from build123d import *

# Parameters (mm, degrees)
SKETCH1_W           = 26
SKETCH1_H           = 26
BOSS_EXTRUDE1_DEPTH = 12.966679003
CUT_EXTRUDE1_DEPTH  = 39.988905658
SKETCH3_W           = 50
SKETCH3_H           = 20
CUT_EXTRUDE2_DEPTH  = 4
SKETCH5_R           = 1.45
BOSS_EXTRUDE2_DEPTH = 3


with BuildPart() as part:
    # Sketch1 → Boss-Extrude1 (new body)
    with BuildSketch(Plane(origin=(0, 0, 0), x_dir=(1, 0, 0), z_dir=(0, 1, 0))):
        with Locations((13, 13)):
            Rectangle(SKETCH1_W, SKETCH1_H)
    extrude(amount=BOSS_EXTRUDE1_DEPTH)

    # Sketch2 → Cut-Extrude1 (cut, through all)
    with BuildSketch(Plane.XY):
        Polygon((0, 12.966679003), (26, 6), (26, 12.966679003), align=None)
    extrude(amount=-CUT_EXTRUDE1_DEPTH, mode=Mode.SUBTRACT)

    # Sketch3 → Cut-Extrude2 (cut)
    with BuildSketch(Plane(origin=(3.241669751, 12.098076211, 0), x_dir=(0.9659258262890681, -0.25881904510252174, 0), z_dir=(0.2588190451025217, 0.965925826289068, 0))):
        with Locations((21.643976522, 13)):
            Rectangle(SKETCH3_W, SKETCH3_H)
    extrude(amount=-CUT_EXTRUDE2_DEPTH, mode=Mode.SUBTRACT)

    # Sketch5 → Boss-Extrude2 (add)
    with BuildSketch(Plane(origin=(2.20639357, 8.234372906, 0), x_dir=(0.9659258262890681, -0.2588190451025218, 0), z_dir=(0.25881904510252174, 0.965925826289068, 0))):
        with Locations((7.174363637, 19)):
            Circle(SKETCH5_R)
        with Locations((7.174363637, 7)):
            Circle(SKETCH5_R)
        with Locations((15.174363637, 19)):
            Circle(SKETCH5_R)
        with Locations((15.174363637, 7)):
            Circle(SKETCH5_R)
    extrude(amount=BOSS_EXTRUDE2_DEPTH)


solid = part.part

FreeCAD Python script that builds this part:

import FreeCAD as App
import Part
import Sketcher
from FreeCAD import Vector
Q = App.Units.Quantity


def add_polygon(sketch, points):
    """Adds a closed chain of lines whose ends are joined by coincident constraints."""
    first, n = sketch.GeometryCount, len(points)
    for a, b in zip(points, points[1:] + points[:1]):
        sketch.addGeometry(Part.LineSegment(App.Vector(*a, 0), App.Vector(*b, 0)), False)
    for i in range(n):
        sketch.addConstraint(Sketcher.Constraint("Coincident", first + i, 2, first + (i + 1) % n, 1))

doc = App.newDocument("Part")
body = doc.addObject("PartDesign::Body", "Body")

# Sketch on XZ plane
sketch1 = body.newObject("Sketcher::SketchObject", "Sketch")
sketch1.AttachmentSupport = (doc.getObject("XZ_Plane"), [""])
sketch1.MapMode = "FlatFace"
add_polygon(sketch1, [(0, -26), (0, 0), (26, 0), (26, -26)])  # lines 0-3
sketch1.addConstraint([
    Sketcher.Constraint("Vertical", 0),
    Sketcher.Constraint("Horizontal", 1),
    Sketcher.Constraint("Vertical", 2),
    Sketcher.Constraint("Horizontal", 3),
    Sketcher.Constraint("Coincident", 0, 2, -1, 1),
    Sketcher.Constraint("Equal", 3, 0),
    Sketcher.Constraint("DistanceX", 1, 1, 1, 2, 26.0),
])
pad1 = body.newObject("PartDesign::Pad", "Pad")
pad1.Profile = sketch1
pad1.Length = 12.966679
pad1.Reversed = True

# Sketch on XY plane
sketch2 = body.newObject("Sketcher::SketchObject", "Sketch001")
sketch2.AttachmentSupport = (doc.getObject("XY_Plane"), [""])
sketch2.MapMode = "FlatFace"
add_polygon(sketch2, [(0, 13), (26, 6), (26, 13)])  # lines 0-2
sketch2.addConstraint([
    Sketcher.Constraint("Vertical", 1),
    Sketcher.Constraint("Horizontal", 2),
    Sketcher.Constraint("PointOnObject", 2, 2, -2),
    Sketcher.Constraint("DistanceX", 2, 2, 2, 1, 26.0),
    Sketcher.Constraint("Angle", 0, Q("-15 deg")),
    Sketcher.Constraint("DistanceY", -1, 1, 0, 2, 6.0),
])
pocket1 = body.newObject("PartDesign::Pocket", "Pocket")
pocket1.Profile = sketch2
pocket1.Type = "ThroughAll"

# Sketch on an angled plane
sketch3 = body.newObject("Sketcher::SketchObject", "Sketch002")
sketch3.Placement = App.Placement(Vector(3.24167, 12.098076, 0), App.Rotation(Vector(0.965925826, -0.258819045, 0), Vector(0, 0, -0.999999999), Vector(0.258819045, 0.965925826, 0), "ZXY"))
add_polygon(sketch3, [(-3, 23), (-3, 3), (47, 3), (47, 23)])  # lines 0-3
sketch3.addConstraint([
    Sketcher.Constraint("Vertical", 0),
    Sketcher.Constraint("Horizontal", 1),
    Sketcher.Constraint("Vertical", 2),
    Sketcher.Constraint("Horizontal", 3),
    Sketcher.Constraint("DistanceX", 1, 1, 1, 2, 50.0),
    Sketcher.Constraint("DistanceY", 0, 2, 0, 1, 20.0),
    Sketcher.Constraint("DistanceY", -1, 1, 0, 2, 3.0),
    Sketcher.Constraint("DistanceX", 0, 2, -1, 1, 3.356023),
])
pocket2 = body.newObject("PartDesign::Pocket", "Pocket001")
pocket2.Profile = sketch3
pocket2.Length = 4

# Sketch on an angled plane
sketch4 = body.newObject("Sketcher::SketchObject", "Sketch003")
sketch4.Placement = App.Placement(Vector(2.206394, 8.234373, 0), App.Rotation(Vector(0.965925826, -0.258819045, 0), Vector(0, 0, -0.999999999), Vector(0.258819045, 0.965925826, 0), "ZXY"))
sketch4.addGeometry([
    Part.Circle(Vector(7.2, 19, 0), Vector(0, 0, 1), 1.4),
    Part.Circle(Vector(7.2, 7, 0), Vector(0, 0, 1), 1.4),
    Part.Circle(Vector(15.2, 19, 0), Vector(0, 0, 1), 1.4),
    Part.Circle(Vector(15.2, 7, 0), Vector(0, 0, 1), 1.4),
], False)
sketch4.addConstraint([
    Sketcher.Constraint("Equal", 0, 1),
    Sketcher.Constraint("Equal", 1, 2),
    Sketcher.Constraint("Equal", 2, 3),
    Sketcher.Constraint("Horizontal", 0, 3, 2, 3),
    Sketcher.Constraint("Horizontal", 1, 3, 3, 3),
    Sketcher.Constraint("Vertical", 0, 3, 1, 3),
    Sketcher.Constraint("Vertical", 2, 3, 3, 3),
    Sketcher.Constraint("Diameter", 0, 2.9),
    Sketcher.Constraint("DistanceY", -1, 1, 0, 3, 19.0),
    Sketcher.Constraint("DistanceY", -1, 1, 1, 3, 7.0),
    Sketcher.Constraint("DistanceX", 0, 3, 2, 3, 8.0),
    Sketcher.Constraint("DistanceX", -1, 1, 0, 3, 7.174364),
])
pad2 = body.newObject("PartDesign::Pad", "Pad001")
pad2.Profile = sketch4
pad2.Length = 3

doc.recompute()
